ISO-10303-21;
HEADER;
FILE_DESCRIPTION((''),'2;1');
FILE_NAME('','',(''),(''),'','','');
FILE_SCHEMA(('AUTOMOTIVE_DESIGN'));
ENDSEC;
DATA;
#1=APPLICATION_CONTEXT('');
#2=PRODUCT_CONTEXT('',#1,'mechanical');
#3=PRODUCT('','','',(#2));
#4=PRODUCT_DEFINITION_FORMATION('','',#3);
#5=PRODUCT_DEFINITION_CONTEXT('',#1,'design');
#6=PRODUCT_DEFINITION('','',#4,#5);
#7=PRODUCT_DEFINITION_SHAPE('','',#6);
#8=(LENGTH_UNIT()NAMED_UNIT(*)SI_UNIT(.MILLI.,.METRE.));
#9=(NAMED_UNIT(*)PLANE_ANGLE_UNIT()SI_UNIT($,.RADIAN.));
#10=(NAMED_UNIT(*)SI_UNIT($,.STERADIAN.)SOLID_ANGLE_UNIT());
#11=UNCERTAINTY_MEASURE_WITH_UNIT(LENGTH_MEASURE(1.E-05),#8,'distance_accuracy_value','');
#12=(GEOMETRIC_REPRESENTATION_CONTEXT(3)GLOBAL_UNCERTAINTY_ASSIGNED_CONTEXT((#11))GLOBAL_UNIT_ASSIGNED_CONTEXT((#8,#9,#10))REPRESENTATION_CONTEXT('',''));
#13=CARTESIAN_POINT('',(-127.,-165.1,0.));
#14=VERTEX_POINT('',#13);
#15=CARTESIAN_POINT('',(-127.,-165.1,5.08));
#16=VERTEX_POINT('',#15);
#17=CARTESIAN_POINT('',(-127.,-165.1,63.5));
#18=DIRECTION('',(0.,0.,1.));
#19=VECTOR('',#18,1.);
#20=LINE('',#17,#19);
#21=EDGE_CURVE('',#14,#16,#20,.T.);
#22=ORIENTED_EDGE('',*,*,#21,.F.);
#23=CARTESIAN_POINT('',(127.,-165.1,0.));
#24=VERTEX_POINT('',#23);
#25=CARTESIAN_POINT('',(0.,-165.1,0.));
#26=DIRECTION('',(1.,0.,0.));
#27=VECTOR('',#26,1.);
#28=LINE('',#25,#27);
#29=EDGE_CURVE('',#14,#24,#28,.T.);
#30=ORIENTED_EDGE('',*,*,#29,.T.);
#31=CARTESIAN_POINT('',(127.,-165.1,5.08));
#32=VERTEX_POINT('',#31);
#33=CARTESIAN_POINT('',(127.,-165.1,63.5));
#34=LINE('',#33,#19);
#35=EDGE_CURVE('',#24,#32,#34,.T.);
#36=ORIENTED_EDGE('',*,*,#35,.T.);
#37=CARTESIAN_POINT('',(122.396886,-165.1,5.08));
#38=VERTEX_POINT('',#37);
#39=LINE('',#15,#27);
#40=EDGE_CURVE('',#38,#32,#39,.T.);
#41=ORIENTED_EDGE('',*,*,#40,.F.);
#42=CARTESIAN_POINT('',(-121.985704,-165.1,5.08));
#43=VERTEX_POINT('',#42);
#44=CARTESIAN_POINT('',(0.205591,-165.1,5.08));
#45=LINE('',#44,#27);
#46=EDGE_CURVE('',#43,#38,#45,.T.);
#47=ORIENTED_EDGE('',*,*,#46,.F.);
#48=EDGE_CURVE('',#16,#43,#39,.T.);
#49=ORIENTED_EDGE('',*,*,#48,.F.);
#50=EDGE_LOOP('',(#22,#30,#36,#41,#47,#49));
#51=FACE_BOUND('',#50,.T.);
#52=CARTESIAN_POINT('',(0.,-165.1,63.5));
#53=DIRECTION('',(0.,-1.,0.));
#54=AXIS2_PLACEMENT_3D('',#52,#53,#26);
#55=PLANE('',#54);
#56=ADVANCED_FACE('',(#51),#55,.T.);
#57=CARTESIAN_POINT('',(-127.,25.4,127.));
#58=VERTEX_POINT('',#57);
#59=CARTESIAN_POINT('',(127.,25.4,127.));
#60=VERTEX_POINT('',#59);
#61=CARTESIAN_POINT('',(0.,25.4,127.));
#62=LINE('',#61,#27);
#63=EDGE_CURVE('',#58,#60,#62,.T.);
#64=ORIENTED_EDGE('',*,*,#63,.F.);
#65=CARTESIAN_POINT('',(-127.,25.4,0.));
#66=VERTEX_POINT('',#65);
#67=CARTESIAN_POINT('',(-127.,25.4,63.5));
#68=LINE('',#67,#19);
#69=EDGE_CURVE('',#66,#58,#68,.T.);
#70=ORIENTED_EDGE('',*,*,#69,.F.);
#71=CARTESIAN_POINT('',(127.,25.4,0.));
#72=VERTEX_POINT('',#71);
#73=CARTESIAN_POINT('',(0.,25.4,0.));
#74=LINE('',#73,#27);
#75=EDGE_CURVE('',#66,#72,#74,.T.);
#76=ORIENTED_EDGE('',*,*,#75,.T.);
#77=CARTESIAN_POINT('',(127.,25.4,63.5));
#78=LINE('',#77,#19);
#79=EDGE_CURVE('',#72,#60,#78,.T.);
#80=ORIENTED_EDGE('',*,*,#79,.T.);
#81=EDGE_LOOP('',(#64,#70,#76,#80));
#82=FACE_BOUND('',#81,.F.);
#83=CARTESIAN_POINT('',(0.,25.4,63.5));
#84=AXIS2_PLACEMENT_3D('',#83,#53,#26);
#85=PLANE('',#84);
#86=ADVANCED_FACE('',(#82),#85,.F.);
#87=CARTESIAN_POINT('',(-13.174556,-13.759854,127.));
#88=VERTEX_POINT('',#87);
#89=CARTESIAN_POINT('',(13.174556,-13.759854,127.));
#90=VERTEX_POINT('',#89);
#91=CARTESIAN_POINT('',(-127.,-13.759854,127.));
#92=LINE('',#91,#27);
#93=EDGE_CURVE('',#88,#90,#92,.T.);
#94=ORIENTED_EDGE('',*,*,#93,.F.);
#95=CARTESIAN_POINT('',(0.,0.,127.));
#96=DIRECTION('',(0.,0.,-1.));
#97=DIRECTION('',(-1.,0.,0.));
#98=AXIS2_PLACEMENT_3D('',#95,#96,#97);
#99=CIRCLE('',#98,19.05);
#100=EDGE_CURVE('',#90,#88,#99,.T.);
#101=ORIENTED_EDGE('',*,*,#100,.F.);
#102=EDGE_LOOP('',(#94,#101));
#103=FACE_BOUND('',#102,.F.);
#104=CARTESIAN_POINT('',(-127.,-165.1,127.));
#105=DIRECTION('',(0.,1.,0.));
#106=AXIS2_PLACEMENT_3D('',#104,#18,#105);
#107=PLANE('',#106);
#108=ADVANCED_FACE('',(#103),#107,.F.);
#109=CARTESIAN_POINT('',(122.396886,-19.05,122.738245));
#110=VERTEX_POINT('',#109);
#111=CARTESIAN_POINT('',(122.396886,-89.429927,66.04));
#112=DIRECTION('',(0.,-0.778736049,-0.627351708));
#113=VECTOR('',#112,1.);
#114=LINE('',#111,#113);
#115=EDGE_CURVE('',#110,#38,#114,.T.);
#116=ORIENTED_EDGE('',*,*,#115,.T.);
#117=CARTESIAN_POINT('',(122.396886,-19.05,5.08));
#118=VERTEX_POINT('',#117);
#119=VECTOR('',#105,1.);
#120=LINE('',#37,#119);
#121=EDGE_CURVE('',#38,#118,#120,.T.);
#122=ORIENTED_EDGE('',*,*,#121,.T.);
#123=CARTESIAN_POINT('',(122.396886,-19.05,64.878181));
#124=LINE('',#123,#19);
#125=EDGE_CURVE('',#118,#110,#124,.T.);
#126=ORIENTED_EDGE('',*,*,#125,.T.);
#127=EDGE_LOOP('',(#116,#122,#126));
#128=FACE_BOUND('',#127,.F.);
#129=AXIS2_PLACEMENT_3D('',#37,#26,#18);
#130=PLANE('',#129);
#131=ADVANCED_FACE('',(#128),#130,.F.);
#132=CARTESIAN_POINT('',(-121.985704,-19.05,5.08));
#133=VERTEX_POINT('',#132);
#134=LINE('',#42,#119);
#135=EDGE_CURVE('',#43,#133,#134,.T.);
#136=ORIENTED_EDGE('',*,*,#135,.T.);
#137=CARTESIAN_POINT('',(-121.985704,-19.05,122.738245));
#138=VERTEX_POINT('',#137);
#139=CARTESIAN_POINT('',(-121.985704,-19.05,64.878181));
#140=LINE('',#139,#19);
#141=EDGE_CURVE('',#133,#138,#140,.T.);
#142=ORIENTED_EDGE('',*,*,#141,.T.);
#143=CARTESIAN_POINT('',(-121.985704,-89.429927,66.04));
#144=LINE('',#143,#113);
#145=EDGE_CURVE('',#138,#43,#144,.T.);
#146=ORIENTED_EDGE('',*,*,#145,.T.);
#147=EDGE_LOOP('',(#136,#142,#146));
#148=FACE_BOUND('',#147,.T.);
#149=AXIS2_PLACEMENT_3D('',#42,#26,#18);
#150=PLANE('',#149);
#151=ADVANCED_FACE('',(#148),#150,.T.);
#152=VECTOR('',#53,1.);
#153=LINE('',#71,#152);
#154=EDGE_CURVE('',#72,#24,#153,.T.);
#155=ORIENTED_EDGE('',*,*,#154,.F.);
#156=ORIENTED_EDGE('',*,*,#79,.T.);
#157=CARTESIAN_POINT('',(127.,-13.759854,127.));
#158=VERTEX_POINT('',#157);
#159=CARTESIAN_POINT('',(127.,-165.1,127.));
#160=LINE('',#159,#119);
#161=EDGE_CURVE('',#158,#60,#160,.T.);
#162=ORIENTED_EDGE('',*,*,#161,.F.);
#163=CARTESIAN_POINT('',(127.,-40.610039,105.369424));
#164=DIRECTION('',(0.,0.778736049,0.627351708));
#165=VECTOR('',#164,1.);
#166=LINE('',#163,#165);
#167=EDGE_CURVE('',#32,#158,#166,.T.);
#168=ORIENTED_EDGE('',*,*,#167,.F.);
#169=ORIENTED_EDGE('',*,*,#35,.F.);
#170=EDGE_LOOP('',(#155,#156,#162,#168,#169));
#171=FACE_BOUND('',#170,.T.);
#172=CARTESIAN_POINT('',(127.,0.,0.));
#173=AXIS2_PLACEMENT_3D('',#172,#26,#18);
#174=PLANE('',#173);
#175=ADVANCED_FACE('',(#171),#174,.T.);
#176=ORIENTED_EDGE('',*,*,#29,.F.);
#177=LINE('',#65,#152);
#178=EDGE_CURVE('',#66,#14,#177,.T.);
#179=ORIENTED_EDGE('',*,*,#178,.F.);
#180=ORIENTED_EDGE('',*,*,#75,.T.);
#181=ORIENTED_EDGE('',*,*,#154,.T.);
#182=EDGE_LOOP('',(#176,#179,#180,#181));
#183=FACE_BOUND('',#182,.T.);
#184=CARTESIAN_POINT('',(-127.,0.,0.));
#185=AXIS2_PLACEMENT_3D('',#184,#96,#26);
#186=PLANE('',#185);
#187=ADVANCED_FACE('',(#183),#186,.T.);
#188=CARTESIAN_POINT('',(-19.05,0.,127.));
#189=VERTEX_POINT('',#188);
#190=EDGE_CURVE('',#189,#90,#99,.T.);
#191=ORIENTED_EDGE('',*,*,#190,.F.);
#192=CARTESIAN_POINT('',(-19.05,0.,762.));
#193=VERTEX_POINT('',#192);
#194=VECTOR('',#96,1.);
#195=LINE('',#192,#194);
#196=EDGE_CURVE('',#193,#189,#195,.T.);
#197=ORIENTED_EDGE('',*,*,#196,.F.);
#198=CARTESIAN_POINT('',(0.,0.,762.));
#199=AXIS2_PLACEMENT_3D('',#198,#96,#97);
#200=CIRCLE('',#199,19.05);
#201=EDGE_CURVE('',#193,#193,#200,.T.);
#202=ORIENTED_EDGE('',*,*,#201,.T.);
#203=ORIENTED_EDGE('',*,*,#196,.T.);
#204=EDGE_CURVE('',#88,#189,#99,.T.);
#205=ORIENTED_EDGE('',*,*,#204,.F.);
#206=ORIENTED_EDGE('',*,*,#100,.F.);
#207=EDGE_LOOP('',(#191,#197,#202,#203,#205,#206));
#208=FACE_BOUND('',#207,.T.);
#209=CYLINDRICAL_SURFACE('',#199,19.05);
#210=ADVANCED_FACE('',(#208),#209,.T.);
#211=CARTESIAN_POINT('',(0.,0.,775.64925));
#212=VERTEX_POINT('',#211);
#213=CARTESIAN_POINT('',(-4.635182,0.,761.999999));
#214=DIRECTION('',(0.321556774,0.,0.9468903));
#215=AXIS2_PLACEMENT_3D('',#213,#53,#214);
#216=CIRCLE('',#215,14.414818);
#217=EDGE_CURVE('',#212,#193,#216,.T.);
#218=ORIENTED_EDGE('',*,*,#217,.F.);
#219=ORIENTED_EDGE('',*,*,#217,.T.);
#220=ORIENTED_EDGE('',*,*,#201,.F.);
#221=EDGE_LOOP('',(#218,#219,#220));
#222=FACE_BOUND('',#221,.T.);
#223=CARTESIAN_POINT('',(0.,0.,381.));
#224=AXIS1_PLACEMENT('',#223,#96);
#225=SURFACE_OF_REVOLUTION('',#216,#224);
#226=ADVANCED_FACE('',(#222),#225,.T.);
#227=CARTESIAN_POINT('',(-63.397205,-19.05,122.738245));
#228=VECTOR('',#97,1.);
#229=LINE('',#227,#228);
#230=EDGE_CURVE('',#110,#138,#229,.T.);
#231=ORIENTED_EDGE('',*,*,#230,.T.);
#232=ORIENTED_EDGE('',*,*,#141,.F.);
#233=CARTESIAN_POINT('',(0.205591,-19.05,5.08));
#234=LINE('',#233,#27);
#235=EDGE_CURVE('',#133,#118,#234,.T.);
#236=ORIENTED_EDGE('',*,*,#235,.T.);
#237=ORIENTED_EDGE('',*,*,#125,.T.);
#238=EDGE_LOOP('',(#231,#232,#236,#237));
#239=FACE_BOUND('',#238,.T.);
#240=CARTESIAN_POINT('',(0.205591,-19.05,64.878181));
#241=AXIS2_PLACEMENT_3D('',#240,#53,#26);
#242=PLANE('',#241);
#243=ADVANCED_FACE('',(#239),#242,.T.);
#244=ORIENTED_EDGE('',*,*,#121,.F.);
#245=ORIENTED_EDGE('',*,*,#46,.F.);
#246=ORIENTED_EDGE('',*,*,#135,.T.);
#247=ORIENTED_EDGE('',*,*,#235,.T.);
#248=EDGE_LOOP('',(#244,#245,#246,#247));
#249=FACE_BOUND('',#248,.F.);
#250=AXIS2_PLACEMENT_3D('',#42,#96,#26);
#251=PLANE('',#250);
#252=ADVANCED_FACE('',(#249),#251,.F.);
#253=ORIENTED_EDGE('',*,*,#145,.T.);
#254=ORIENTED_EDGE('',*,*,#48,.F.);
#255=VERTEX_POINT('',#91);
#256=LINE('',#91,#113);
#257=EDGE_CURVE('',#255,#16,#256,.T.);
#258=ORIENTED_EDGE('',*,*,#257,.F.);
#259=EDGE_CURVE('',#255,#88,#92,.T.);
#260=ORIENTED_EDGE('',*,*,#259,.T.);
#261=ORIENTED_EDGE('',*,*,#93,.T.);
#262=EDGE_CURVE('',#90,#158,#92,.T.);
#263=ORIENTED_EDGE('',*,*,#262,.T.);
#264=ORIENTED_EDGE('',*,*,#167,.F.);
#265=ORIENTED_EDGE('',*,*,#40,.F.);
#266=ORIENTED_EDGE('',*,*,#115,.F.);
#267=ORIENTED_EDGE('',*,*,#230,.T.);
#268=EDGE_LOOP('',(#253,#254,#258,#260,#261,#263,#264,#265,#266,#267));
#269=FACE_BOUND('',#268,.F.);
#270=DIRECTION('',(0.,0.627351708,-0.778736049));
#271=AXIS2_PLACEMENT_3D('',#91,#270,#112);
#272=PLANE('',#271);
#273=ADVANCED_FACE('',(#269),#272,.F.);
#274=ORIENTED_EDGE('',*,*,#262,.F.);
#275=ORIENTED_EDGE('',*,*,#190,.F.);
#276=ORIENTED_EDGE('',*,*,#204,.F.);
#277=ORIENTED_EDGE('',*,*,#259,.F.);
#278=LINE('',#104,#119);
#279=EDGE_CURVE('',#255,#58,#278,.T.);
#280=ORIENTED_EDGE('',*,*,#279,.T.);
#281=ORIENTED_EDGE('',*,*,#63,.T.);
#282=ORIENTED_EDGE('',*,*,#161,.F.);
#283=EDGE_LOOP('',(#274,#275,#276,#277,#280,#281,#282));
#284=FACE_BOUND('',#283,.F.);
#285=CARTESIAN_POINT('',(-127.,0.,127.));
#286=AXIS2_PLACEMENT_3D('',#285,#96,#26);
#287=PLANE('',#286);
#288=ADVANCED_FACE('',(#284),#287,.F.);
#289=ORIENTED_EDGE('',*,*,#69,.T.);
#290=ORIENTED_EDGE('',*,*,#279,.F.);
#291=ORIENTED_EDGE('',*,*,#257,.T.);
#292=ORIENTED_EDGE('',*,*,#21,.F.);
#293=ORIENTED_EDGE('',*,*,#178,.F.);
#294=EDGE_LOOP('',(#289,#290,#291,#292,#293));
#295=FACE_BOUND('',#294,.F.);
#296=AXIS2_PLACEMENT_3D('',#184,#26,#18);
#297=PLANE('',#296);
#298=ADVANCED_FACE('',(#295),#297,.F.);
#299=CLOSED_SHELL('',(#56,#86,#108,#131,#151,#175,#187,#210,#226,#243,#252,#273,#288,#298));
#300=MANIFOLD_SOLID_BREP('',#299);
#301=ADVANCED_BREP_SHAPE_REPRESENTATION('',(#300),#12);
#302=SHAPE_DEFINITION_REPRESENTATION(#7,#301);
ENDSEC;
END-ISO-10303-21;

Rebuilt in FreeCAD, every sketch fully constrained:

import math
import FreeCAD as App
import Part
import Sketcher
from FreeCAD import Vector
Q = App.Units.Quantity

doc = App.newDocument("Part")
body = doc.addObject("PartDesign::Body", "Body")

sketch1 = doc.addObject("Sketcher::SketchObject", "Sketch")
body.addObject(sketch1)
sketch1.AttachmentSupport = (doc.XZ_Plane, [""])
sketch1.MapMode = "FlatFace"
sketch1.addGeometry([
    Part.LineSegment(Vector(-19.05, 762, 0), Vector(-19.05, 0, 0)),
    Part.LineSegment(Vector(-19.05, 0, 0), Vector(0, 0, 0)),
    Part.LineSegment(Vector(0, 0, 0), Vector(0, 775.64925, 0)),
    Part.ArcOfCircle(Part.Circle(Vector(-4.635182, 761.999999, 0), Vector(0, 0, 1), 14.414818), math.radians(71.242902), math.radians(179.999996)),
], False)
sketch1.addConstraint([
    Sketcher.Constraint("Coincident", 0, 2, 1, 1),
    Sketcher.Constraint("Coincident", 1, 2, 2, 1),
    Sketcher.Constraint("Coincident", 2, 2, 3, 1),
    Sketcher.Constraint("Tangent", 3, 2, 0, 1),
    Sketcher.Constraint("Vertical", 0),
    Sketcher.Constraint("Horizontal", 1),
    Sketcher.Constraint("Vertical", 2),
    Sketcher.Constraint("Coincident", 1, 2, -1, 1),
    Sketcher.Constraint("DistanceY", 0, 2, 0, 1, Q("30 in")),
    Sketcher.Constraint("DistanceX", 1, 1, 1, 2, Q("0.75 in")),
    Sketcher.Constraint("Radius", 3, 14.414818),
])
revolution = doc.addObject("PartDesign::Revolution", "Revolution")
body.addObject(revolution)
revolution.Profile = sketch1
revolution.ReferenceAxis = (sketch1, ["V_Axis"])
revolution.Angle = 360

sketch2 = doc.addObject("Sketcher::SketchObject", "Sketch001")
body.addObject(sketch2)
sketch2.AttachmentSupport = (doc.XZ_Plane, [""])
sketch2.MapMode = "FlatFace"
sketch2.addGeometry([
    Part.LineSegment(Vector(-127, 127, 0), Vector(-127, 0, 0)),
    Part.LineSegment(Vector(-127, 0, 0), Vector(127, 0, 0)),
    Part.LineSegment(Vector(127, 0, 0), Vector(127, 127, 0)),
    Part.LineSegment(Vector(127, 127, 0), Vector(-127, 127, 0)),
], False)
sketch2.addConstraint([
    Sketcher.Constraint("Coincident", 0, 2, 1, 1),
    Sketcher.Constraint("Coincident", 1, 2, 2, 1),
    Sketcher.Constraint("Coincident", 2, 2, 3, 1),
    Sketcher.Constraint("Coincident", 3, 2, 0, 1),
    Sketcher.Constraint("Vertical", 0),
    Sketcher.Constraint("Horizontal", 1),
    Sketcher.Constraint("Vertical", 2),
    Sketcher.Constraint("Horizontal", 3),
    Sketcher.Constraint("Symmetric", 0, 2, 1, 2, -1, 1),
    Sketcher.Constraint("DistanceX", 1, 1, 1, 2, Q("10 in")),
    Sketcher.Constraint("DistanceY", 0, 2, 0, 1, Q("5 in")),
])
pad1 = doc.addObject("PartDesign::Pad", "Pad")
body.addObject(pad1)
pad1.Profile = sketch2
pad1.Type = "TwoLengths"
pad1.Length = Q("6.5 in")
pad1.Length2 = Q("1 in")

sketch3 = doc.addObject("Sketcher::SketchObject", "Sketch002")
body.addObject(sketch3)
sketch3.AttachmentSupport = (doc.YZ_Plane, [""])
sketch3.MapMode = "FlatFace"
sketch3.AttachmentOffset = App.Placement(Vector(0, 0, -5 * 25.4), App.Rotation())
sketch3.addGeometry([
    Part.LineSegment(Vector(-165.1, 127, 0), Vector(-13.759854, 127, 0)),
    Part.LineSegment(Vector(-13.759854, 127, 0), Vector(-165.1, 5.08, 0)),
    Part.LineSegment(Vector(-165.1, 5.08, 0), Vector(-165.1, 127, 0)),
], False)
sketch3.addConstraint([
    Sketcher.Constraint("Coincident", 0, 2, 1, 1),
    Sketcher.Constraint("Coincident", 1, 2, 2, 1),
    Sketcher.Constraint("Coincident", 2, 2, 0, 1),
    Sketcher.Constraint("Horizontal", 0),
    Sketcher.Constraint("Vertical", 2),
    Sketcher.Constraint("DistanceY", 2, 1, 2, 2, Q("4.8 in")),
    Sketcher.Constraint("DistanceY", -1, 1, 0, 2, Q("5 in")),
    Sketcher.Constraint("DistanceX", 1, 2, -1, 1, Q("6.5 in")),
    Sketcher.Constraint("DistanceX", 0, 1, 0, 2, 151.340146),
])
pocket1 = doc.addObject("PartDesign::Pocket", "Pocket")
body.addObject(pocket1)
pocket1.Profile = sketch3
pocket1.Length = Q("15.2 in")
pocket1.Reversed = True

sketch4 = doc.addObject("Sketcher::SketchObject", "Sketch003")
body.addObject(sketch4)
sketch4.AttachmentSupport = (doc.XZ_Plane, [""])
sketch4.MapMode = "FlatFace"
sketch4.AttachmentOffset = App.Placement(Vector(0, 0, 6.5 * 25.4), App.Rotation())
sketch4.addGeometry([
    Part.LineSegment(Vector(-121.985704, 124.676362, 0), Vector(-121.985704, 5.08, 0)),
    Part.LineSegment(Vector(-121.985704, 5.08, 0), Vector(122.396886, 5.08, 0)),
    Part.LineSegment(Vector(122.396886, 5.08, 0), Vector(122.396886, 124.676362, 0)),
    Part.LineSegment(Vector(122.396886, 124.676362, 0), Vector(-121.985704, 124.676362, 0)),
], False)
sketch4.addConstraint([
    Sketcher.Constraint("Coincident", 0, 2, 1, 1),
    Sketcher.Constraint("Coincident", 1, 2, 2, 1),
    Sketcher.Constraint("Coincident", 2, 2, 3, 1),
    Sketcher.Constraint("Coincident", 3, 2, 0, 1),
    Sketcher.Constraint("Vertical", 0),
    Sketcher.Constraint("Horizontal", 1),
    Sketcher.Constraint("Vertical", 2),
    Sketcher.Constraint("Horizontal", 3),
    Sketcher.Constraint("DistanceY", -1, 1, 0, 2, Q("0.2 in")),
    Sketcher.Constraint("DistanceX", 1, 1, 1, 2, 244.38259),
    Sketcher.Constraint("DistanceY", 0, 2, 0, 1, 119.596362),
    Sketcher.Constraint("DistanceX", 0, 2, -1, 1, 121.985704),
])
pocket2 = doc.addObject("PartDesign::Pocket", "Pocket001")
body.addObject(pocket2)
pocket2.Profile = sketch4
pocket2.Length = Q("5.75 in")

doc.recompute()
